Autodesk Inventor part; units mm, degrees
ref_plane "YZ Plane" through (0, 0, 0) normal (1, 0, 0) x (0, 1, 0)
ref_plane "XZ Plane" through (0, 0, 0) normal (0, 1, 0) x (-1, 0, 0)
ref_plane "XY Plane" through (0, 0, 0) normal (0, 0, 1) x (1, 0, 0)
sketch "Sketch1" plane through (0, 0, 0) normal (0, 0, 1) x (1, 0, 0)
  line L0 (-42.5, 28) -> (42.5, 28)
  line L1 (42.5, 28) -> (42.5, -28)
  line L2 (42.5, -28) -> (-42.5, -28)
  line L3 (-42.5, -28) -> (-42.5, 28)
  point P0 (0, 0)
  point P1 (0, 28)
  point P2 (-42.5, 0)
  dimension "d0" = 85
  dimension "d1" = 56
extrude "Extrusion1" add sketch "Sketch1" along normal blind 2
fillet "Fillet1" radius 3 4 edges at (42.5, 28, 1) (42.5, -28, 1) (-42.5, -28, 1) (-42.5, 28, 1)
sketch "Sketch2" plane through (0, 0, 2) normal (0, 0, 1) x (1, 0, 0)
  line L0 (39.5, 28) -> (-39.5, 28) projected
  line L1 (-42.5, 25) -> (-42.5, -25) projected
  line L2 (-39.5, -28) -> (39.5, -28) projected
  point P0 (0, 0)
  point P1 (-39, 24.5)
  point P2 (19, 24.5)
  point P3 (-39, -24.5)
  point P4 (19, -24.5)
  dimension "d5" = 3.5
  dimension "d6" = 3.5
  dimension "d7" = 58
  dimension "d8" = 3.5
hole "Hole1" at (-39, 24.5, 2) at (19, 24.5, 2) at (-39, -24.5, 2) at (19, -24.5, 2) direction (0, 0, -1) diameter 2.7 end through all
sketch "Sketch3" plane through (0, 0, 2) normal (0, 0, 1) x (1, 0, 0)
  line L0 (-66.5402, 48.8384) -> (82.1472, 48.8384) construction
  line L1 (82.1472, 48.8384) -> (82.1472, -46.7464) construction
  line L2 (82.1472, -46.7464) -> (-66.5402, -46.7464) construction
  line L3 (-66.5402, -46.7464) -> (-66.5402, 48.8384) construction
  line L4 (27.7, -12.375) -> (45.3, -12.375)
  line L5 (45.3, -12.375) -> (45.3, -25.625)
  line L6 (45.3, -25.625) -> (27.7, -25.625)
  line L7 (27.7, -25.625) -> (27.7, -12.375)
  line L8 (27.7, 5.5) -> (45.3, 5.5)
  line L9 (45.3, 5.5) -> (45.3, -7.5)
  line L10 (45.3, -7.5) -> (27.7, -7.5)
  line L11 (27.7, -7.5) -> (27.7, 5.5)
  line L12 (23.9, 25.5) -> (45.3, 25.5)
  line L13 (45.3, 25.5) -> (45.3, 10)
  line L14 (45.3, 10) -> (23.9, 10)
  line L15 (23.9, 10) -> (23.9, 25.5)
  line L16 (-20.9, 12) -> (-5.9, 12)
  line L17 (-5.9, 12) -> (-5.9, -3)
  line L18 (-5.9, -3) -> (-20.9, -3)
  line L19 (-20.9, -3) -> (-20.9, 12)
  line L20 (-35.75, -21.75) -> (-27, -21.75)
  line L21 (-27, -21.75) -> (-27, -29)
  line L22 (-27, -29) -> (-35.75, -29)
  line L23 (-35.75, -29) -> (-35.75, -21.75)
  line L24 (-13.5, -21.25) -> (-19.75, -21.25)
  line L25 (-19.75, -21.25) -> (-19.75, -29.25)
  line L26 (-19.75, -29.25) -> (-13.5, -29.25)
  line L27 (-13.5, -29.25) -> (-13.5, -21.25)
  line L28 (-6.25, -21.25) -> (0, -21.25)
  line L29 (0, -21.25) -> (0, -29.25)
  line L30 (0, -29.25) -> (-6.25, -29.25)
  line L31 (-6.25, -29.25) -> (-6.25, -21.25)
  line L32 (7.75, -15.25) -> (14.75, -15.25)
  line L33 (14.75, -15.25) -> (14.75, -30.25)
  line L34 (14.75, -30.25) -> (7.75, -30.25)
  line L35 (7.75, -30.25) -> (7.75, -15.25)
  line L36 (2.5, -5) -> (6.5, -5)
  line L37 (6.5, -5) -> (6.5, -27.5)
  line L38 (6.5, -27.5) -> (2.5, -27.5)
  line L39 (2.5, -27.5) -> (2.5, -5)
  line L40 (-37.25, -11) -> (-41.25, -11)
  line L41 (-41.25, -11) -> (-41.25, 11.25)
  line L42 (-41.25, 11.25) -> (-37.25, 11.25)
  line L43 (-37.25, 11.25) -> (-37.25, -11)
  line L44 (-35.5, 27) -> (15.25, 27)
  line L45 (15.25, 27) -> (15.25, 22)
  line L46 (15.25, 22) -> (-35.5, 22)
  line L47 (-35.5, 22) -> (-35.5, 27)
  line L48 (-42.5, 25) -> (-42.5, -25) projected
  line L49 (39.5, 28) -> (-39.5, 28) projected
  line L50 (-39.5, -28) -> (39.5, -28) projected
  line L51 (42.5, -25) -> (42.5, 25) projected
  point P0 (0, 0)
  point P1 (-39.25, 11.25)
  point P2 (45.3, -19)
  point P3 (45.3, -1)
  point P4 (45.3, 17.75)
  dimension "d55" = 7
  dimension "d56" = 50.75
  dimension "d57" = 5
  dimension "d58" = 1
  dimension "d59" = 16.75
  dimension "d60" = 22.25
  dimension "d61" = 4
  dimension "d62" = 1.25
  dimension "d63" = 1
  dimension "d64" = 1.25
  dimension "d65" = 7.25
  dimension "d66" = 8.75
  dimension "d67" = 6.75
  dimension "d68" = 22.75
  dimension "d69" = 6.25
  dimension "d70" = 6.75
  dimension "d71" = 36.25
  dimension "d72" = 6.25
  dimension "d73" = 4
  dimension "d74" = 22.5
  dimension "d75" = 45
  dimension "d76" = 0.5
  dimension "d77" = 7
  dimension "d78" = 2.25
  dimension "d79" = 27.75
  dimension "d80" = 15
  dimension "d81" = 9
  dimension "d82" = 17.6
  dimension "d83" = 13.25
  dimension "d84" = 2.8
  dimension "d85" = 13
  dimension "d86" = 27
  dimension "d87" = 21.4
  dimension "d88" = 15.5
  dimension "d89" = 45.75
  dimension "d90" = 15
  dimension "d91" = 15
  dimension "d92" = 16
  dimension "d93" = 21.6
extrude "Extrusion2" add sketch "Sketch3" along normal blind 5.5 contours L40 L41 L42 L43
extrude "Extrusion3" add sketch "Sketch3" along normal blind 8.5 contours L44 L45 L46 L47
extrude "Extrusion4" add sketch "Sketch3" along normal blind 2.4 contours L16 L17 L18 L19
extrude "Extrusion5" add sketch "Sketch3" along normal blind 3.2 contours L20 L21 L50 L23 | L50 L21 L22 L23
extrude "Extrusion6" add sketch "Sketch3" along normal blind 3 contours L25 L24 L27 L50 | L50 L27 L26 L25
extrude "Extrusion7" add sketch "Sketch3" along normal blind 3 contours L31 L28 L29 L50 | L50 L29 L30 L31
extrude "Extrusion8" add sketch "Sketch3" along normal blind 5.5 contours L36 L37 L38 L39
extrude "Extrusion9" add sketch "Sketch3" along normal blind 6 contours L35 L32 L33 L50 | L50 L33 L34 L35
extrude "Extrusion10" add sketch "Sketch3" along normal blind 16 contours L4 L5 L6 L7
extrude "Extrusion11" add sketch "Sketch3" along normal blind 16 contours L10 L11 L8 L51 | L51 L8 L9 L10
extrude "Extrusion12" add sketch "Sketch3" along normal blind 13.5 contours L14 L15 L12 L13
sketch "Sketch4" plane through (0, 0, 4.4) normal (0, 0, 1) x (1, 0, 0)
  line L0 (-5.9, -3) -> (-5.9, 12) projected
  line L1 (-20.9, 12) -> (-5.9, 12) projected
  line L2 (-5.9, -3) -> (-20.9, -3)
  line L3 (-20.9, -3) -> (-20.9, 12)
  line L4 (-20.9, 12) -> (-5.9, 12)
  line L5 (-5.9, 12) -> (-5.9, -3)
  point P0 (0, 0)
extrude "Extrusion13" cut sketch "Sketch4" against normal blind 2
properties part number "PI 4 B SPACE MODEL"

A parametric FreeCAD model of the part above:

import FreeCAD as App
import Part
import Sketcher
Q = App.Units.Quantity


def edges_at(feature, points):
    """Names of the edges that pass closest to the given points."""
    edges = feature.Shape.Edges
    near = lambda p: min(range(len(edges)), key=lambda i: edges[i].distToShape(Part.Vertex(*p))[0])
    return sorted({f"Edge{near(p) + 1}" for p in points})


def add_polygon(sketch, points):
    """Adds a closed chain of lines whose ends are joined by coincident constraints."""
    first, n = sketch.GeometryCount, len(points)
    for a, b in zip(points, points[1:] + points[:1]):
        sketch.addGeometry(Part.LineSegment(App.Vector(*a, 0), App.Vector(*b, 0)), False)
    for i in range(n):
        sketch.addConstraint(Sketcher.Constraint("Coincident", first + i, 2, first + (i + 1) % n, 1))

doc = App.newDocument("Part")
params = doc.addObject("Spreadsheet::Sheet", "Params")
for row, (alias, value) in enumerate([
    ("sketch1_width", "85 mm"),
    ("sketch1_height", "56 mm"),
    ("pad1_length", "2 mm"),
    ("fillet_radius", "3 mm"),
    ("sketch2_diameter", "2.7 mm"),
    ("hole_diameter", "2.7 mm"),
    ("sketch3_width", "4 mm"),
    ("sketch3_height", "22.25 mm"),
    ("pad2_length", "5.5 mm"),
    ("sketch4_height", "5 mm"),
    ("sketch4_width", "50.75 mm"),
    ("pad3_length", "8.5 mm"),
    ("sketch5_width", "15 mm"),
    ("pad4_length", "2.4 mm"),
    ("sketch6_width", "8.75 mm"),
    ("sketch6_height", "7.25 mm"),
    ("pad5_length", "3.2 mm"),
    ("sketch7_width", "6.25 mm"),
    ("sketch7_height", "8 mm"),
    ("pad6_length", "3 mm"),
    ("sketch8_width", "6.25 mm"),
    ("sketch8_height", "8 mm"),
    ("pad7_length", "3 mm"),
    ("sketch9_width", "4 mm"),
    ("sketch9_height", "22.5 mm"),
    ("pad8_length", "5.5 mm"),
    ("sketch10_width", "7 mm"),
    ("sketch10_height", "15 mm"),
    ("pad9_length", "6 mm"),
    ("sketch11_width", "17.6 mm"),
    ("sketch11_height", "13.25 mm"),
    ("pad10_length", "16 mm"),
    ("sketch12_height", "13 mm"),
    ("sketch12_width", "17.6 mm"),
    ("pad11_length", "16 mm"),
    ("sketch13_width", "21.4 mm"),
    ("sketch13_height", "15.5 mm"),
    ("pad12_length", "13.5 mm"),
    ("sketch14_width", "15 mm"),
    ("pocket1_length", "2 mm"),
], start=1):
    params.set(f"A{row}", alias)
    params.set(f"B{row}", "=" + value)
    params.setAlias(f"B{row}", alias)

body = doc.addObject("PartDesign::Body", "Body")

# Sketch on XY plane
sketch1 = body.newObject("Sketcher::SketchObject", "Sketch")
sketch1.AttachmentSupport = (doc.getObject("XY_Plane"), [""])
sketch1.MapMode = "FlatFace"
add_polygon(sketch1, [(42, 28), (-42, 28), (-42, -28), (42, -28)])  # lines 0-3
sketch1.addConstraint([
    Sketcher.Constraint("Horizontal", 0),
    Sketcher.Constraint("Vertical", 1),
    Sketcher.Constraint("Horizontal", 2),
    Sketcher.Constraint("Vertical", 3),
    Sketcher.Constraint("Symmetric", 0, 2, 2, 2, -1, 1),
    Sketcher.Constraint("DistanceX", 0, 2, 0, 1, Q("85 mm")),
    Sketcher.Constraint("DistanceY", 1, 2, 1, 1, Q("56 mm")),
])
sketch1.setExpression("Constraints[9]", "Params.sketch1_width")
sketch1.setExpression("Constraints[10]", "Params.sketch1_height")
pad1 = body.newObject("PartDesign::Pad", "Pad")
pad1.Profile = sketch1
pad1.setExpression("Length", "Params.pad1_length")
doc.recompute()

fillet = body.newObject("PartDesign::Fillet", "Fillet")
fillet.Base = (pad1, edges_at(pad1, [
    (42.5, 28, 1),
    (42.5, -28, 1),
    (-42.5, -28, 1),
    (-42.5, 28, 1),
]))
fillet.setExpression("Radius", "Params.fillet_radius")

# Sketch on XY plane
sketch2 = body.newObject("Sketcher::SketchObject", "Sketch001")
sketch2.AttachmentSupport = (doc.getObject("XY_Plane"), [""])
sketch2.MapMode = "FlatFace"
sketch2.AttachmentOffset = App.Placement(App.Vector(0, 0, 2), App.Rotation())
sketch2.addGeometry([
    Part.Circle(App.Vector(-39, 24.5, 0), App.Vector(0, 0, 1), 1.4),
    Part.Circle(App.Vector(19, 24.5, 0), App.Vector(0, 0, 1), 1.4),
    Part.Circle(App.Vector(-39, -24.5, 0), App.Vector(0, 0, 1), 1.4),
    Part.Circle(App.Vector(19, -24.5, 0), App.Vector(0, 0, 1), 1.4),
], False)
sketch2.addConstraint([
    Sketcher.Constraint("Equal", 0, 1),
    Sketcher.Constraint("Equal", 1, 2),
    Sketcher.Constraint("Equal", 2, 3),
    Sketcher.Constraint("Symmetric", 0, 3, 2, 3, -1),
    Sketcher.Constraint("Symmetric", 1, 3, 3, 3, -1),
    Sketcher.Constraint("Horizontal", 0, 3, 1, 3),
    Sketcher.Constraint("Diameter", 0, Q("2.7 mm")),
    Sketcher.Constraint("DistanceX", 0, 3, -1, 1, Q("39 mm")),
    Sketcher.Constraint("DistanceX", -1, 1, 1, 3, Q("19 mm")),
    Sketcher.Constraint("DistanceY", 2, 3, 0, 3, Q("49 mm")),
])
sketch2.setExpression("Constraints[6]", "Params.sketch2_diameter")
doc.recompute()
hole = body.newObject("PartDesign::Hole", "Hole")
hole.Profile = sketch2
hole.ThreadType = "None"
hole.setExpression("Diameter", "Params.hole_diameter")
hole.DepthType = "ThroughAll"

# Sketch on XY plane
sketch3 = body.newObject("Sketcher::SketchObject", "Sketch002")
sketch3.AttachmentSupport = (doc.getObject("XY_Plane"), [""])
sketch3.MapMode = "FlatFace"
sketch3.AttachmentOffset = App.Placement(App.Vector(0, 0, 2), App.Rotation())
add_polygon(sketch3, [(-41.2, -11), (-37.2, -11), (-37.2, 11.2), (-41.2, 11.2)])  # lines 0-3
sketch3.addConstraint([
    Sketcher.Constraint("Horizontal", 0),
    Sketcher.Constraint("Vertical", 1),
    Sketcher.Constraint("Horizontal", 2),
    Sketcher.Constraint("Vertical", 3),
    Sketcher.Constraint("DistanceX", 0, 1, 0, 2, Q("4 mm")),
    Sketcher.Constraint("DistanceY", 1, 1, 1, 2, Q("22.25 mm")),
    Sketcher.Constraint("DistanceY", 0, 2, -1, 1, Q("11 mm")),
    Sketcher.Constraint("DistanceX", 0, 2, -1, 1, Q("37.25 mm")),
])
sketch3.setExpression("Constraints[8]", "Params.sketch3_width")
sketch3.setExpression("Constraints[9]", "Params.sketch3_height")
pad2 = body.newObject("PartDesign::Pad", "Pad001")
pad2.Profile = sketch3
pad2.setExpression("Length", "Params.pad2_length")

# Sketch on XY plane
sketch4 = body.newObject("Sketcher::SketchObject", "Sketch003")
sketch4.AttachmentSupport = (doc.getObject("XY_Plane"), [""])
sketch4.MapMode = "FlatFace"
sketch4.AttachmentOffset = App.Placement(App.Vector(0, 0, 2), App.Rotation())
add_polygon(sketch4, [(15, 27), (-36, 27), (-36, 22), (15, 22)])  # lines 0-3
sketch4.addConstraint([
    Sketcher.Constraint("Horizontal", 0),
    Sketcher.Constraint("Vertical", 1),
    Sketcher.Constraint("Horizontal", 2),
    Sketcher.Constraint("Vertical", 3),
    Sketcher.Constraint("DistanceY", 1, 2, 1, 1, Q("5 mm")),
    Sketcher.Constraint("DistanceY", -1, 1, 0, 2, Q("27 mm")),
    Sketcher.Constraint("DistanceX", 0, 2, 0, 1, Q("50.75 mm")),
    Sketcher.Constraint("DistanceX", 0, 2, -1, 1, Q("35.5 mm")),
])
sketch4.setExpression("Constraints[8]", "Params.sketch4_height")
sketch4.setExpression("Constraints[10]", "Params.sketch4_width")
pad3 = body.newObject("PartDesign::Pad", "Pad002")
pad3.Profile = sketch4
pad3.setExpression("Length", "Params.pad3_length")

# Sketch on XY plane
sketch5 = body.newObject("Sketcher::SketchObject", "Sketch004")
sketch5.AttachmentSupport = (doc.getObject("XY_Plane"), [""])
sketch5.MapMode = "FlatFace"
sketch5.AttachmentOffset = App.Placement(App.Vector(0, 0, 2), App.Rotation())
add_polygon(sketch5, [(-6, 12), (-21, 12), (-21, -3), (-6, -3)])  # lines 0-3
sketch5.addConstraint([
    Sketcher.Constraint("Horizontal", 0),
    Sketcher.Constraint("Vertical", 1),
    Sketcher.Constraint("Horizontal", 2),
    Sketcher.Constraint("Vertical", 3),
    Sketcher.Constraint("Equal", 2, 1),
    Sketcher.Constraint("DistanceX", 0, 2, 0, 1, Q("15 mm")),
    Sketcher.Constraint("DistanceY", -1, 1, 0, 2, Q("12 mm")),
    Sketcher.Constraint("DistanceX", 0, 2, -1, 1, Q("20.9 mm")),
])
sketch5.setExpression("Constraints[9]", "Params.sketch5_width")
pad4 = body.newObject("PartDesign::Pad", "Pad003")
pad4.Profile = sketch5
pad4.setExpression("Length", "Params.pad4_length")

# Sketch on XY plane
sketch6 = body.newObject("Sketcher::SketchObject", "Sketch005")
sketch6.AttachmentSupport = (doc.getObject("XY_Plane"), [""])
sketch6.MapMode = "FlatFace"
sketch6.AttachmentOffset = App.Placement(App.Vector(0, 0, 2), App.Rotation())
add_polygon(sketch6, [(-27, -22), (-36, -22), (-36, -29), (-27, -29)])  # lines 0-3
sketch6.addConstraint([
    Sketcher.Constraint("Horizontal", 0),
    Sketcher.Constraint("Vertical", 1),
    Sketcher.Constraint("Horizontal", 2),
    Sketcher.Constraint("Vertical", 3),
    Sketcher.Constraint("DistanceX", 2, 2, -1, 1, Q("27 mm")),
    Sketcher.Constraint("DistanceX", 0, 2, 0, 1, Q("8.75 mm")),
    Sketcher.Constraint("DistanceY", 1, 2, 1, 1, Q("7.25 mm")),
    Sketcher.Constraint("DistanceY", 1, 2, -1, 1, Q("29 mm")),
])
sketch6.setExpression("Constraints[9]", "Params.sketch6_width")
sketch6.setExpression("Constraints[10]", "Params.sketch6_height")
pad5 = body.newObject("PartDesign::Pad", "Pad004")
pad5.Profile = sketch6
pad5.setExpression("Length", "Params.pad5_length")

# Sketch on XY plane
sketch7 = body.newObject("Sketcher::SketchObject", "Sketch006")
sketch7.AttachmentSupport = (doc.getObject("XY_Plane"), [""])
sketch7.MapMode = "FlatFace"
sketch7.AttachmentOffset = App.Placement(App.Vector(0, 0, 2), App.Rotation())
add_polygon(sketch7, [(-20, -21), (-20, -29), (-14, -29), (-14, -21)])  # lines 0-3
sketch7.addConstraint([
    Sketcher.Constraint("Vertical", 0),
    Sketcher.Constraint("Horizontal", 1),
    Sketcher.Constraint("Vertical", 2),
    Sketcher.Constraint("Horizontal", 3),
    Sketcher.Constraint("DistanceX", 1, 1, 1, 2, Q("6.25 mm")),
    Sketcher.Constraint("DistanceY", 0, 2, 0, 1, Q("8 mm")),
    Sketcher.Constraint("DistanceX", 1, 2, -1, 1, Q("13.5 mm")),
    Sketcher.Constraint("DistanceY", 0, 2, -1, 1, Q("29.25 mm")),
])
sketch7.setExpression("Constraints[8]", "Params.sketch7_width")
sketch7.setExpression("Constraints[9]", "Params.sketch7_height")
pad6 = body.newObject("PartDesign::Pad", "Pad005")
pad6.Profile = sketch7
pad6.setExpression("Length", "Params.pad6_length")

# Sketch on XY plane
sketch8 = body.newObject("Sketcher::SketchObject", "Sketch007")
sketch8.AttachmentSupport = (doc.getObject("XY_Plane"), [""])
sketch8.MapMode = "FlatFace"
sketch8.AttachmentOffset = App.Placement(App.Vector(0, 0, 2), App.Rotation())
add_polygon(sketch8, [(-6, -21), (-6, -29), (0, -29), (0, -21)])  # lines 0-3
sketch8.addConstraint([
    Sketcher.Constraint("Vertical", 0),
    Sketcher.Constraint("Horizontal", 1),
    Sketcher.Constraint("Vertical", 2),
    Sketcher.Constraint("Horizontal", 3),
    Sketcher.Constraint("PointOnObject", 1, 2, -2),
    Sketcher.Constraint("DistanceX", 1, 1, 1, 2, Q("6.25 mm")),
    Sketcher.Constraint("DistanceY", 0, 2, 0, 1, Q("8 mm")),
    Sketcher.Constraint("DistanceY", 0, 2, -1, 1, Q("29.25 mm")),
])
sketch8.setExpression("Constraints[9]", "Params.sketch8_width")
sketch8.setExpression("Constraints[10]", "Params.sketch8_height")
pad7 = body.newObject("PartDesign::Pad", "Pad006")
pad7.Profile = sketch8
pad7.setExpression("Length", "Params.pad7_length")

# Sketch on XY plane
sketch9 = body.newObject("Sketcher::SketchObject", "Sketch008")
sketch9.AttachmentSupport = (doc.getObject("XY_Plane"), [""])
sketch9.MapMode = "FlatFace"
sketch9.AttachmentOffset = App.Placement(App.Vector(0, 0, 2), App.Rotation())
add_polygon(sketch9, [(6.5, -5), (2.5, -5), (2.5, -27.5), (6.5, -27.5)])  # lines 0-3
sketch9.addConstraint([
    Sketcher.Constraint("Horizontal", 0),
    Sketcher.Constraint("Vertical", 1),
    Sketcher.Constraint("Horizontal", 2),
    Sketcher.Constraint("Vertical", 3),
    Sketcher.Constraint("DistanceX", 0, 2, 0, 1, Q("4 mm")),
    Sketcher.Constraint("DistanceY", 1, 2, 1, 1, Q("22.5 mm")),
    Sketcher.Constraint("DistanceY", 0, 2, -1, 1, Q("5 mm")),
    Sketcher.Constraint("DistanceX", -1, 1, 0, 2, Q("2.5 mm")),
])
sketch9.setExpression("Constraints[8]", "Params.sketch9_width")
sketch9.setExpression("Constraints[9]", "Params.sketch9_height")
pad8 = body.newObject("PartDesign::Pad", "Pad007")
pad8.Profile = sketch9
pad8.setExpression("Length", "Params.pad8_length")

# Sketch on XY plane
sketch10 = body.newObject("Sketcher::SketchObject", "Sketch009")
sketch10.AttachmentSupport = (doc.getObject("XY_Plane"), [""])
sketch10.MapMode = "FlatFace"
sketch10.AttachmentOffset = App.Placement(App.Vector(0, 0, 2), App.Rotation())
add_polygon(sketch10, [(8, -15), (8, -30), (15, -30), (15, -15)])  # lines 0-3
sketch10.addConstraint([
    Sketcher.Constraint("Vertical", 0),
    Sketcher.Constraint("Horizontal", 1),
    Sketcher.Constraint("Vertical", 2),
    Sketcher.Constraint("Horizontal", 3),
    Sketcher.Constraint("DistanceX", 1, 1, 1, 2, Q("7 mm")),
    Sketcher.Constraint("DistanceY", 0, 2, 0, 1, Q("15 mm")),
    Sketcher.Constraint("DistanceX", -1, 1, 0, 2, Q("7.75 mm")),
    Sketcher.Constraint("DistanceY", 0, 2, -1, 1, Q("30.25 mm")),
])
sketch10.setExpression("Constraints[8]", "Params.sketch10_width")
sketch10.setExpression("Constraints[9]", "Params.sketch10_height")
pad9 = body.newObject("PartDesign::Pad", "Pad008")
pad9.Profile = sketch10
pad9.setExpression("Length", "Params.pad9_length")

# Sketch on XY plane
sketch11 = body.newObject("Sketcher::SketchObject", "Sketch010")
sketch11.AttachmentSupport = (doc.getObject("XY_Plane"), [""])
sketch11.MapMode = "FlatFace"
sketch11.AttachmentOffset = App.Placement(App.Vector(0, 0, 2), App.Rotation())
add_polygon(sketch11, [(45, -12), (28, -12), (28, -26), (45, -26)])  # lines 0-3
sketch11.addConstraint([
    Sketcher.Constraint("Horizontal", 0),
    Sketcher.Constraint("Vertical", 1),
    Sketcher.Constraint("Horizontal", 2),
    Sketcher.Constraint("Vertical", 3),
    Sketcher.Constraint("DistanceX", 0, 2, 0, 1, Q("17.6 mm")),
    Sketcher.Constraint("DistanceY", 1, 2, 1, 1, Q("13.25 mm")),
    Sketcher.Constraint("DistanceX", -1, 1, 0, 2, Q("27.7 mm")),
    Sketcher.Constraint("DistanceY", 0, 2, -1, 1, Q("12.375 mm")),
])
sketch11.setExpression("Constraints[8]", "Params.sketch11_width")
sketch11.setExpression("Constraints[9]", "Params.sketch11_height")
pad10 = body.newObject("PartDesign::Pad", "Pad009")
pad10.Profile = sketch11
pad10.setExpression("Length", "Params.pad10_length")

# Sketch on XY plane
sketch12 = body.newObject("Sketcher::SketchObject", "Sketch011")
sketch12.AttachmentSupport = (doc.getObject("XY_Plane"), [""])
sketch12.MapMode = "FlatFace"
sketch12.AttachmentOffset = App.Placement(App.Vector(0, 0, 2), App.Rotation())
add_polygon(sketch12, [(28, -8), (45, -8), (45, 6), (28, 6)])  # lines 0-3
sketch12.addConstraint([
    Sketcher.Constraint("Horizontal", 0),
    Sketcher.Constraint("Vertical", 1),
    Sketcher.Constraint("Horizontal", 2),
    Sketcher.Constraint("Vertical", 3),
    Sketcher.Constraint("DistanceY", 1, 1, 1, 2, Q("13 mm")),
    Sketcher.Constraint("DistanceX", 0, 1, 0, 2, Q("17.6 mm")),
    Sketcher.Constraint("DistanceX", -1, 1, 0, 2, Q("45.3 mm")),
    Sketcher.Constraint("DistanceY", 0, 2, -1, 1, Q("7.5 mm")),
])
sketch12.setExpression("Constraints[8]", "Params.sketch12_height")
sketch12.setExpression("Constraints[9]", "Params.sketch12_width")
pad11 = body.newObject("PartDesign::Pad", "Pad010")
pad11.Profile = sketch12
pad11.setExpression("Length", "Params.pad11_length")

# Sketch on XY plane
sketch13 = body.newObject("Sketcher::SketchObject", "Sketch012")
sketch13.AttachmentSupport = (doc.getObject("XY_Plane"), [""])
sketch13.MapMode = "FlatFace"
sketch13.AttachmentOffset = App.Placement(App.Vector(0, 0, 2), App.Rotation())
add_polygon(sketch13, [(24, 10), (45, 10), (45, 26), (24, 26)])  # lines 0-3
sketch13.addConstraint([
    Sketcher.Constraint("Horizontal", 0),
    Sketcher.Constraint("Vertical", 1),
    Sketcher.Constraint("Horizontal", 2),
    Sketcher.Constraint("Vertical", 3),
    Sketcher.Constraint("DistanceX", 0, 1, 0, 2, Q("21.4 mm")),
    Sketcher.Constraint("DistanceY", 1, 1, 1, 2, Q("15.5 mm")),
    Sketcher.Constraint("DistanceY", -1, 1, 0, 2, Q("10 mm")),
    Sketcher.Constraint("DistanceX", -1, 1, 0, 2, Q("45.3 mm")),
])
sketch13.setExpression("Constraints[8]", "Params.sketch13_width")
sketch13.setExpression("Constraints[9]", "Params.sketch13_height")
pad12 = body.newObject("PartDesign::Pad", "Pad011")
pad12.Profile = sketch13
pad12.setExpression("Length", "Params.pad12_length")

# Sketch on XY plane
sketch14 = body.newObject("Sketcher::SketchObject", "Sketch013")
sketch14.AttachmentSupport = (doc.getObject("XY_Plane"), [""])
sketch14.MapMode = "FlatFace"
sketch14.AttachmentOffset = App.Placement(App.Vector(0, 0, 4.4), App.Rotation())
add_polygon(sketch14, [(-21, -3), (-6, -3), (-6, 12), (-21, 12)])  # lines 0-3
sketch14.addConstraint([
    Sketcher.Constraint("Horizontal", 0),
    Sketcher.Constraint("Vertical", 1),
    Sketcher.Constraint("Horizontal", 2),
    Sketcher.Constraint("Vertical", 3),
    Sketcher.Constraint("Equal", 2, 1),
    Sketcher.Constraint("DistanceX", 0, 1, 0, 2, Q("15 mm")),
    Sketcher.Constraint("DistanceY", 0, 2, -1, 1, Q("3 mm")),
    Sketcher.Constraint("DistanceX", 0, 2, -1, 1, Q("5.9 mm")),
])
sketch14.setExpression("Constraints[9]", "Params.sketch14_width")
pocket1 = body.newObject("PartDesign::Pocket", "Pocket")
pocket1.Profile = sketch14
pocket1.setExpression("Length", "Params.pocket1_length")

doc.recompute()
